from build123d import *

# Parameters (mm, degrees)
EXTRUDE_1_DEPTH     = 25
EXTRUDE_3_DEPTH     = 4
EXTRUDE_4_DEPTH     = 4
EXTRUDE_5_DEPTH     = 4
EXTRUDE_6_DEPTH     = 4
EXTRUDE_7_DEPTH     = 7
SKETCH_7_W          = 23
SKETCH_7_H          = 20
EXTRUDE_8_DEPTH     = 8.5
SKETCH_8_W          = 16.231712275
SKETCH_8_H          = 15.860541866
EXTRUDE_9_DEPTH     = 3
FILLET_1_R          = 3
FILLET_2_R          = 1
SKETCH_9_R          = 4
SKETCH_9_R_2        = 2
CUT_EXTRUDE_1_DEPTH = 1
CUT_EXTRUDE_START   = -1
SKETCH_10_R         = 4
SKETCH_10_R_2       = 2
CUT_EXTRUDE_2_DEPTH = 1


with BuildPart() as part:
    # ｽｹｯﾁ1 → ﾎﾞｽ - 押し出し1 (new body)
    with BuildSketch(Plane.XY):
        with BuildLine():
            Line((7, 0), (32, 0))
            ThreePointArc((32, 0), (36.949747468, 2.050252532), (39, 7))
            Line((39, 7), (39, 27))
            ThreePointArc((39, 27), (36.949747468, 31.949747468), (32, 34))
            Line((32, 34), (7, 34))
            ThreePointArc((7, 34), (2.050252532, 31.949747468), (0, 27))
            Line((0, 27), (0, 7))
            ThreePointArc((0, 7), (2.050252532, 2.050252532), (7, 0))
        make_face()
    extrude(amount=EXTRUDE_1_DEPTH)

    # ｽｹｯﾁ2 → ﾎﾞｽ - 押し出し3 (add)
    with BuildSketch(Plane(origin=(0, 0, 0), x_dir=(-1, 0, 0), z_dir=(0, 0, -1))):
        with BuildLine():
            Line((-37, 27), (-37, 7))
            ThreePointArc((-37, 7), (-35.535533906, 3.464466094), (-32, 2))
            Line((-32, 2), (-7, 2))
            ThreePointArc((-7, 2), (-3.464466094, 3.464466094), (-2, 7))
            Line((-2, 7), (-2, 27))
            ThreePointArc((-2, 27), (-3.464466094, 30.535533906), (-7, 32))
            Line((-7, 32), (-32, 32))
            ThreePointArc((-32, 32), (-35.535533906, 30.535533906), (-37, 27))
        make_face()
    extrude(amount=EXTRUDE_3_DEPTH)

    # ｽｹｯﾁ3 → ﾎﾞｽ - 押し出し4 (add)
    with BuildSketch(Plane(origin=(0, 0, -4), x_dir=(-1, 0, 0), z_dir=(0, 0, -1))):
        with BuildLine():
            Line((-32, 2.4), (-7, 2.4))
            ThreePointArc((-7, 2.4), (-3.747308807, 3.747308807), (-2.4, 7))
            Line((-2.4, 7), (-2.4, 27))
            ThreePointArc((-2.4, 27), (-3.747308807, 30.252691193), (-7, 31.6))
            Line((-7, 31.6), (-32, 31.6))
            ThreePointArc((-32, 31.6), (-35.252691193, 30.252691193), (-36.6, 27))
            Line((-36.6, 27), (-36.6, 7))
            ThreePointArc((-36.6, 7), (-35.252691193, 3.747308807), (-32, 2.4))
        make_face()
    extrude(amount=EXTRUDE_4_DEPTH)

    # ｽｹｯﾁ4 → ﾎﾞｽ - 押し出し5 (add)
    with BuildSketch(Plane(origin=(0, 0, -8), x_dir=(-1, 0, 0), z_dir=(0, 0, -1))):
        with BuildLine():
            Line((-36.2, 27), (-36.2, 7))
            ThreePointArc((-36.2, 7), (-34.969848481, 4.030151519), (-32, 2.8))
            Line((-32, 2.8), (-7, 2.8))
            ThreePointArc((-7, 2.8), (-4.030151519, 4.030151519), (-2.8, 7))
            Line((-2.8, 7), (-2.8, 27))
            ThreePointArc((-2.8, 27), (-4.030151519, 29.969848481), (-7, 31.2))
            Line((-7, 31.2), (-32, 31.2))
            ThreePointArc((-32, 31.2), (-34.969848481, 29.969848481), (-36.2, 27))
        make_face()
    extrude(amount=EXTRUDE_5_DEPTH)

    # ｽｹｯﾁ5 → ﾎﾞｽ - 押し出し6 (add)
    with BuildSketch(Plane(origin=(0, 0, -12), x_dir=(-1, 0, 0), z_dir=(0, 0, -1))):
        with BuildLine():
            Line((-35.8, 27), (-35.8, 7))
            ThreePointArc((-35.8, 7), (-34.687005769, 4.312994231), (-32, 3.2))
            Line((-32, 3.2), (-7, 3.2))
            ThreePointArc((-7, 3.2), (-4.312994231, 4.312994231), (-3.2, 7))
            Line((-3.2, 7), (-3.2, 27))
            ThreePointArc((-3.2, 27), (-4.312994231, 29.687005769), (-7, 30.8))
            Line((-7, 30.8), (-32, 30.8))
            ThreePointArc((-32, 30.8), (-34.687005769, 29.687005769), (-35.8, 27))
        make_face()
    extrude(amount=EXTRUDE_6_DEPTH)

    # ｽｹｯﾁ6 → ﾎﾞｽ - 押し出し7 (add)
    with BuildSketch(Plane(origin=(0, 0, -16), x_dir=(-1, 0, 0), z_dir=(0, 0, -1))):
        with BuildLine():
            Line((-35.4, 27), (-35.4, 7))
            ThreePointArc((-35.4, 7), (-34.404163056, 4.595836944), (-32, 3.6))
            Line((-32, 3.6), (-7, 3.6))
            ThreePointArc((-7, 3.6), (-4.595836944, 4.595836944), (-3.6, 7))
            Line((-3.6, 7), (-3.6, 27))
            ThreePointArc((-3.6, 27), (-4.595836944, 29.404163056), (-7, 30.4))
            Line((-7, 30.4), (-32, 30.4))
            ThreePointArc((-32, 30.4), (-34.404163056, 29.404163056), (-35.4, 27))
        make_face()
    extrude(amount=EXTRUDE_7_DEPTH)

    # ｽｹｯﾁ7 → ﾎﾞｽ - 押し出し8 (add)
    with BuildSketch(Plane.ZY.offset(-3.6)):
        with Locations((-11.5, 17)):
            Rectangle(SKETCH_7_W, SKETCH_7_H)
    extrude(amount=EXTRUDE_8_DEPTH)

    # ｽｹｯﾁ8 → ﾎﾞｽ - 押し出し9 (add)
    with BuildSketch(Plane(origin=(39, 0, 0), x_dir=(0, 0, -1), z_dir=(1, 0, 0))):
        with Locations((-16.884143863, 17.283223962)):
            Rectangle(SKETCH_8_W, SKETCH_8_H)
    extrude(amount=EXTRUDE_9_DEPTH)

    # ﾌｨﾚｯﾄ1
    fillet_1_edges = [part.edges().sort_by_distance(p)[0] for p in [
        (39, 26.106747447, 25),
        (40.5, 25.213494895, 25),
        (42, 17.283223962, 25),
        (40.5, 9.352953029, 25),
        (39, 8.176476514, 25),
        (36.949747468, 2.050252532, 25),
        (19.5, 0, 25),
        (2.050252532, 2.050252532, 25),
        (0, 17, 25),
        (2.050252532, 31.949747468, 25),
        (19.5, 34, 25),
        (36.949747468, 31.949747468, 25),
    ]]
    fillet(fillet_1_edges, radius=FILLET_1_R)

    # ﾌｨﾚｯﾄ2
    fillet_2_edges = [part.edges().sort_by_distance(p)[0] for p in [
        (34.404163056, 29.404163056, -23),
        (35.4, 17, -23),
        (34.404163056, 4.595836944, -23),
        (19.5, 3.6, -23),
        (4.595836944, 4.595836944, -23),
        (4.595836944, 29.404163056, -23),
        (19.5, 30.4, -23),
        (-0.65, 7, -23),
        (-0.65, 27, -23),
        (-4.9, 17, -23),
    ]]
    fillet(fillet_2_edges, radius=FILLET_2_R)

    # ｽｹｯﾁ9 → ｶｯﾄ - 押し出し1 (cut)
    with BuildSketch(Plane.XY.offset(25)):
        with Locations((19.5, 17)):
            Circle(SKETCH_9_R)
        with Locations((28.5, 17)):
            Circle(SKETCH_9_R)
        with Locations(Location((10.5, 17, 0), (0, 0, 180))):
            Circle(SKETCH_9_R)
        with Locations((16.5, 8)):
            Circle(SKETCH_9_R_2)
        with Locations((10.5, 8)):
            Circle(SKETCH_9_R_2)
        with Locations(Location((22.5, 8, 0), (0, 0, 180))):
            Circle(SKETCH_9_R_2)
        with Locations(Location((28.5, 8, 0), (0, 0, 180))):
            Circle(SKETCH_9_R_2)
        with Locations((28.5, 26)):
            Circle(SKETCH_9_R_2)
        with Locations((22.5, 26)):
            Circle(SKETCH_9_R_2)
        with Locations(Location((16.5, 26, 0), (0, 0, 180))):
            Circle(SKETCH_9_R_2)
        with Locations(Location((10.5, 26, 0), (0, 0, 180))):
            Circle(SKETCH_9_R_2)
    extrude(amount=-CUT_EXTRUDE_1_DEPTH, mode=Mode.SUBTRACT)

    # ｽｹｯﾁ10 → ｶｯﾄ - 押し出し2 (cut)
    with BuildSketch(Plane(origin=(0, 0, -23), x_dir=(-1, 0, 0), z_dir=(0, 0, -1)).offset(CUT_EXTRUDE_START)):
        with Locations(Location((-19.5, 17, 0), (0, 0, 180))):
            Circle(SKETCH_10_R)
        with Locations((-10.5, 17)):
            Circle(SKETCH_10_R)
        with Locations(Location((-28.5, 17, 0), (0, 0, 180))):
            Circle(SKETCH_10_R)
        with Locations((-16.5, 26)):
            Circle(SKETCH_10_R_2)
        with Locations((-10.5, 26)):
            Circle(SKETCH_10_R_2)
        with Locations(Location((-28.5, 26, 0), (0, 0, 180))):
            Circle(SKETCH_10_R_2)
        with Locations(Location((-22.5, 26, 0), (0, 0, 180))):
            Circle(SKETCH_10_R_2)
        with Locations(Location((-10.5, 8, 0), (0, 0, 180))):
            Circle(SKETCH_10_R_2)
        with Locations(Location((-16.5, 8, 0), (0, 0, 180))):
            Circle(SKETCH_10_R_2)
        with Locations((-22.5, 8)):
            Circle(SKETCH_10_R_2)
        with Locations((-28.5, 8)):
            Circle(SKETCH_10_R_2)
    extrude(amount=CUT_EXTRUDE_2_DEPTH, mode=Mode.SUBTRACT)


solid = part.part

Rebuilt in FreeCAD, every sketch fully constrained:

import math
import FreeCAD as App
import Part
import Sketcher


def edges_at(feature, points):
    """Names of the edges that pass closest to the given points."""
    edges = feature.Shape.Edges
    near = lambda p: min(range(len(edges)), key=lambda i: edges[i].distToShape(Part.Vertex(*p))[0])
    return sorted({f"Edge{near(p) + 1}" for p in points})

doc = App.newDocument("Part")
body = doc.addObject("PartDesign::Body", "Body")

sketch1 = body.newObject("Sketcher::SketchObject", "Sketch")
sketch1.AttachmentSupport = (doc.getObject("XY_Plane"), [""])
sketch1.MapMode = "FlatFace"
sketch1.addGeometry(Part.LineSegment(App.Vector(7, 0, 0), App.Vector(32, 0, 0)), False)
sketch1.addGeometry(Part.ArcOfCircle(Part.Circle(App.Vector(32, 7, 0), App.Vector(0, 0, 1), 7), math.radians(-90), math.radians(0)), False)
sketch1.addGeometry(Part.LineSegment(App.Vector(39, 7, 0), App.Vector(39, 27, 0)), False)
sketch1.addGeometry(Part.ArcOfCircle(Part.Circle(App.Vector(32, 27, 0), App.Vector(0, 0, 1), 7), math.radians(0), math.radians(90)), False)
sketch1.addGeometry(Part.LineSegment(App.Vector(32, 34, 0), App.Vector(7, 34, 0)), False)
sketch1.addGeometry(Part.ArcOfCircle(Part.Circle(App.Vector(7, 27, 0), App.Vector(0, 0, 1), 7), math.radians(90), math.radians(180)), False)
sketch1.addGeometry(Part.LineSegment(App.Vector(0, 27, 0), App.Vector(0, 7, 0)), False)
sketch1.addGeometry(Part.ArcOfCircle(Part.Circle(App.Vector(7, 7, 0), App.Vector(0, 0, 1), 7), math.radians(-180), math.radians(-90)), False)
sketch1.addConstraint(Sketcher.Constraint("Tangent", 0, 2, 1, 1))
sketch1.addConstraint(Sketcher.Constraint("Tangent", 1, 2, 2, 1))
sketch1.addConstraint(Sketcher.Constraint("Tangent", 2, 2, 3, 1))
sketch1.addConstraint(Sketcher.Constraint("Tangent", 3, 2, 4, 1))
sketch1.addConstraint(Sketcher.Constraint("Tangent", 4, 2, 5, 1))
sketch1.addConstraint(Sketcher.Constraint("Tangent", 5, 2, 6, 1))
sketch1.addConstraint(Sketcher.Constraint("Tangent", 6, 2, 7, 1))
sketch1.addConstraint(Sketcher.Constraint("Tangent", 7, 2, 0, 1))
sketch1.addConstraint(Sketcher.Constraint("Horizontal", 0))
sketch1.addConstraint(Sketcher.Constraint("Vertical", 2))
sketch1.addConstraint(Sketcher.Constraint("Horizontal", 4))
sketch1.addConstraint(Sketcher.Constraint("Vertical", 6))
sketch1.addConstraint(Sketcher.Constraint("Equal", 1, 3))
sketch1.addConstraint(Sketcher.Constraint("Equal", 3, 5))
sketch1.addConstraint(Sketcher.Constraint("Equal", 5, 7))
sketch1.addConstraint(Sketcher.Constraint("PointOnObject", 0, 2, -1))
sketch1.addConstraint(Sketcher.Constraint("PointOnObject", 5, 2, -2))
sketch1.addConstraint(Sketcher.Constraint("Radius", 1, 7.0))
sketch1.addConstraint(Sketcher.Constraint("DistanceX", 0, 1, 0, 2, 25.0))
sketch1.addConstraint(Sketcher.Constraint("DistanceY", 2, 1, 2, 2, 20.0))
pad1 = body.newObject("PartDesign::Pad", "Pad")
pad1.Profile = sketch1
pad1.Length = 25

sketch2 = body.newObject("Sketcher::SketchObject", "Sketch001")
sketch2.AttachmentSupport = (doc.getObject("XY_Plane"), [""])
sketch2.MapMode = "FlatFace"
sketch2.addGeometry(Part.LineSegment(App.Vector(37, 27, 0), App.Vector(37, 7, 0)), False)
sketch2.addGeometry(Part.ArcOfCircle(Part.Circle(App.Vector(32, 7, 0), App.Vector(0, 0, 1), 5), math.radians(-90), math.radians(0)), False)
sketch2.addGeometry(Part.LineSegment(App.Vector(32, 2, 0), App.Vector(7, 2, 0)), False)
sketch2.addGeometry(Part.ArcOfCircle(Part.Circle(App.Vector(7, 7, 0), App.Vector(0, 0, 1), 5), math.radians(180), math.radians(270)), False)
sketch2.addGeometry(Part.LineSegment(App.Vector(2, 7, 0), App.Vector(2, 27, 0)), False)
sketch2.addGeometry(Part.ArcOfCircle(Part.Circle(App.Vector(7, 27, 0), App.Vector(0, 0, 1), 5), math.radians(90), math.radians(180)), False)
sketch2.addGeometry(Part.LineSegment(App.Vector(7, 32, 0), App.Vector(32, 32, 0)), False)
sketch2.addGeometry(Part.ArcOfCircle(Part.Circle(App.Vector(32, 27, 0), App.Vector(0, 0, 1), 5), math.radians(0), math.radians(90)), False)
sketch2.addConstraint(Sketcher.Constraint("Tangent", 0, 2, 1, 2))
sketch2.addConstraint(Sketcher.Constraint("Tangent", 1, 1, 2, 1))
sketch2.addConstraint(Sketcher.Constraint("Tangent", 2, 2, 3, 2))
sketch2.addConstraint(Sketcher.Constraint("Tangent", 3, 1, 4, 1))
sketch2.addConstraint(Sketcher.Constraint("Tangent", 4, 2, 5, 2))
sketch2.addConstraint(Sketcher.Constraint("Tangent", 5, 1, 6, 1))
sketch2.addConstraint(Sketcher.Constraint("Tangent", 6, 2, 7, 2))
sketch2.addConstraint(Sketcher.Constraint("Tangent", 7, 1, 0, 1))
sketch2.addConstraint(Sketcher.Constraint("Vertical", 0))
sketch2.addConstraint(Sketcher.Constraint("Horizontal", 2))
sketch2.addConstraint(Sketcher.Constraint("Vertical", 4))
sketch2.addConstraint(Sketcher.Constraint("Horizontal", 6))
sketch2.addConstraint(Sketcher.Constraint("Equal", 1, 3))
sketch2.addConstraint(Sketcher.Constraint("Equal", 3, 5))
sketch2.addConstraint(Sketcher.Constraint("Equal", 5, 7))
sketch2.addConstraint(Sketcher.Constraint("Radius", 1, 5.0))
sketch2.addConstraint(Sketcher.Constraint("DistanceX", 2, 2, 2, 1, 25.0))
sketch2.addConstraint(Sketcher.Constraint("DistanceY", 0, 2, 0, 1, 20.0))
sketch2.addConstraint(Sketcher.Constraint("DistanceX", -1, 1, 1, 3, 32.0))
sketch2.addConstraint(Sketcher.Constraint("DistanceY", -1, 1, 1, 3, 7.0))
pad2 = body.newObject("PartDesign::Pad", "Pad001")
pad2.Profile = sketch2
pad2.Length = 4
pad2.Reversed = True

sketch3 = body.newObject("Sketcher::SketchObject", "Sketch002")
sketch3.AttachmentSupport = (doc.getObject("XY_Plane"), [""])
sketch3.MapMode = "FlatFace"
sketch3.AttachmentOffset = App.Placement(App.Vector(0, 0, -4), App.Rotation())
sketch3.addGeometry(Part.LineSegment(App.Vector(32, 2.4, 0), App.Vector(7, 2.4, 0)), False)
sketch3.addGeometry(Part.ArcOfCircle(Part.Circle(App.Vector(7, 7, 0), App.Vector(0, 0, 1), 4.6), math.radians(-180), math.radians(-90)), False)
sketch3.addGeometry(Part.LineSegment(App.Vector(2.4, 7, 0), App.Vector(2.4, 27, 0)), False)
sketch3.addGeometry(Part.ArcOfCircle(Part.Circle(App.Vector(7, 27, 0), App.Vector(0, 0, 1), 4.6), math.radians(90), math.radians(180)), False)
sketch3.addGeometry(Part.LineSegment(App.Vector(7, 31.6, 0), App.Vector(32, 31.6, 0)), False)
sketch3.addGeometry(Part.ArcOfCircle(Part.Circle(App.Vector(32, 27, 0), App.Vector(0, 0, 1), 4.6), math.radians(0), math.radians(90)), False)
sketch3.addGeometry(Part.LineSegment(App.Vector(36.6, 27, 0), App.Vector(36.6, 7, 0)), False)
sketch3.addGeometry(Part.ArcOfCircle(Part.Circle(App.Vector(32, 7, 0), App.Vector(0, 0, 1), 4.6), math.radians(-90), math.radians(0)), False)
sketch3.addConstraint(Sketcher.Constraint("Tangent", 0, 2, 1, 2))
sketch3.addConstraint(Sketcher.Constraint("Tangent", 1, 1, 2, 1))
sketch3.addConstraint(Sketcher.Constraint("Tangent", 2, 2, 3, 2))
sketch3.addConstraint(Sketcher.Constraint("Tangent", 3, 1, 4, 1))
sketch3.addConstraint(Sketcher.Constraint("Tangent", 4, 2, 5, 2))
sketch3.addConstraint(Sketcher.Constraint("Tangent", 5, 1, 6, 1))
sketch3.addConstraint(Sketcher.Constraint("Tangent", 6, 2, 7, 2))
sketch3.addConstraint(Sketcher.Constraint("Tangent", 7, 1, 0, 1))
sketch3.addConstraint(Sketcher.Constraint("Horizontal", 0))
sketch3.addConstraint(Sketcher.Constraint("Vertical", 2))
sketch3.addConstraint(Sketcher.Constraint("Horizontal", 4))
sketch3.addConstraint(Sketcher.Constraint("Vertical", 6))
sketch3.addConstraint(Sketcher.Constraint("Equal", 1, 3))
sketch3.addConstraint(Sketcher.Constraint("Equal", 3, 5))
sketch3.addConstraint(Sketcher.Constraint("Equal", 5, 7))
sketch3.addConstraint(Sketcher.Constraint("Radius", 1, 4.6))
sketch3.addConstraint(Sketcher.Constraint("DistanceX", 0, 2, 0, 1, 25.0))
sketch3.addConstraint(Sketcher.Constraint("DistanceY", 2, 1, 2, 2, 20.0))
sketch3.addConstraint(Sketcher.Constraint("DistanceX", -1, 1, 1, 3, 7.0))
sketch3.addConstraint(Sketcher.Constraint("DistanceY", -1, 1, 1, 3, 7.0))
pad3 = body.newObject("PartDesign::Pad", "Pad002")
pad3.Profile = sketch3
pad3.Length = 4
pad3.Reversed = True

sketch4 = body.newObject("Sketcher::SketchObject", "Sketch003")
sketch4.AttachmentSupport = (doc.getObject("XY_Plane"), [""])
sketch4.MapMode = "FlatFace"
sketch4.AttachmentOffset = App.Placement(App.Vector(0, 0, -8), App.Rotation())
sketch4.addGeometry(Part.LineSegment(App.Vector(36.2, 27, 0), App.Vector(36.2, 7, 0)), False)
sketch4.addGeometry(Part.ArcOfCircle(Part.Circle(App.Vector(32, 7, 0), App.Vector(0, 0, 1), 4.2), math.radians(-90), math.radians(0)), False)
sketch4.addGeometry(Part.LineSegment(App.Vector(32, 2.8, 0), App.Vector(7, 2.8, 0)), False)
sketch4.addGeometry(Part.ArcOfCircle(Part.Circle(App.Vector(7, 7, 0), App.Vector(0, 0, 1), 4.2), math.radians(180), math.radians(270)), False)
sketch4.addGeometry(Part.LineSegment(App.Vector(2.8, 7, 0), App.Vector(2.8, 27, 0)), False)
sketch4.addGeometry(Part.ArcOfCircle(Part.Circle(App.Vector(7, 27, 0), App.Vector(0, 0, 1), 4.2), math.radians(90), math.radians(180)), False)
sketch4.addGeometry(Part.LineSegment(App.Vector(7, 31.2, 0), App.Vector(32, 31.2, 0)), False)
sketch4.addGeometry(Part.ArcOfCircle(Part.Circle(App.Vector(32, 27, 0), App.Vector(0, 0, 1), 4.2), math.radians(0), math.radians(90)), False)
sketch4.addConstraint(Sketcher.Constraint("Tangent", 0, 2, 1, 2))
sketch4.addConstraint(Sketcher.Constraint("Tangent", 1, 1, 2, 1))
sketch4.addConstraint(Sketcher.Constraint("Tangent", 2, 2, 3, 2))
sketch4.addConstraint(Sketcher.Constraint("Tangent", 3, 1, 4, 1))
sketch4.addConstraint(Sketcher.Constraint("Tangent", 4, 2, 5, 2))
sketch4.addConstraint(Sketcher.Constraint("Tangent", 5, 1, 6, 1))
sketch4.addConstraint(Sketcher.Constraint("Tangent", 6, 2, 7, 2))
sketch4.addConstraint(Sketcher.Constraint("Tangent", 7, 1, 0, 1))
sketch4.addConstraint(Sketcher.Constraint("Vertical", 0))
sketch4.addConstraint(Sketcher.Constraint("Horizontal", 2))
sketch4.addConstraint(Sketcher.Constraint("Vertical", 4))
sketch4.addConstraint(Sketcher.Constraint("Horizontal", 6))
sketch4.addConstraint(Sketcher.Constraint("Equal", 1, 3))
sketch4.addConstraint(Sketcher.Constraint("Equal", 3, 5))
sketch4.addConstraint(Sketcher.Constraint("Equal", 5, 7))
sketch4.addConstraint(Sketcher.Constraint("Radius", 1, 4.2))
sketch4.addConstraint(Sketcher.Constraint("DistanceX", 2, 2, 2, 1, 25.0))
sketch4.addConstraint(Sketcher.Constraint("DistanceY", 0, 2, 0, 1, 20.0))
sketch4.addConstraint(Sketcher.Constraint("DistanceX", -1, 1, 1, 3, 32.0))
sketch4.addConstraint(Sketcher.Constraint("DistanceY", -1, 1, 1, 3, 7.0))
pad4 = body.newObject("PartDesign::Pad", "Pad003")
pad4.Profile = sketch4
pad4.Length = 4
pad4.Reversed = True

sketch5 = body.newObject("Sketcher::SketchObject", "Sketch004")
sketch5.AttachmentSupport = (doc.getObject("XY_Plane"), [""])
sketch5.MapMode = "FlatFace"
sketch5.AttachmentOffset = App.Placement(App.Vector(0, 0, -12), App.Rotation())
sketch5.addGeometry(Part.LineSegment(App.Vector(35.8, 27, 0), App.Vector(35.8, 7, 0)), False)
sketch5.addGeometry(Part.ArcOfCircle(Part.Circle(App.Vector(32, 7, 0), App.Vector(0, 0, 1), 3.8), math.radians(-90), math.radians(0)), False)
sketch5.addGeometry(Part.LineSegment(App.Vector(32, 3.2, 0), App.Vector(7, 3.2, 0)), False)
sketch5.addGeometry(Part.ArcOfCircle(Part.Circle(App.Vector(7, 7, 0), App.Vector(0, 0, 1), 3.8), math.radians(180), math.radians(270)), False)
sketch5.addGeometry(Part.LineSegment(App.Vector(3.2, 7, 0), App.Vector(3.2, 27, 0)), False)
sketch5.addGeometry(Part.ArcOfCircle(Part.Circle(App.Vector(7, 27, 0), App.Vector(0, 0, 1), 3.8), math.radians(90), math.radians(180)), False)
sketch5.addGeometry(Part.LineSegment(App.Vector(7, 30.8, 0), App.Vector(32, 30.8, 0)), False)
sketch5.addGeometry(Part.ArcOfCircle(Part.Circle(App.Vector(32, 27, 0), App.Vector(0, 0, 1), 3.8), math.radians(0), math.radians(90)), False)
sketch5.addConstraint(Sketcher.Constraint("Tangent", 0, 2, 1, 2))
sketch5.addConstraint(Sketcher.Constraint("Tangent", 1, 1, 2, 1))
sketch5.addConstraint(Sketcher.Constraint("Tangent", 2, 2, 3, 2))
sketch5.addConstraint(Sketcher.Constraint("Tangent", 3, 1, 4, 1))
sketch5.addConstraint(Sketcher.Constraint("Tangent", 4, 2, 5, 2))
sketch5.addConstraint(Sketcher.Constraint("Tangent", 5, 1, 6, 1))
sketch5.addConstraint(Sketcher.Constraint("Tangent", 6, 2, 7, 2))
sketch5.addConstraint(Sketcher.Constraint("Tangent", 7, 1, 0, 1))
sketch5.addConstraint(Sketcher.Constraint("Vertical", 0))
sketch5.addConstraint(Sketcher.Constraint("Horizontal", 2))
sketch5.addConstraint(Sketcher.Constraint("Vertical", 4))
sketch5.addConstraint(Sketcher.Constraint("Horizontal", 6))
sketch5.addConstraint(Sketcher.Constraint("Equal", 1, 3))
sketch5.addConstraint(Sketcher.Constraint("Equal", 3, 5))
sketch5.addConstraint(Sketcher.Constraint("Equal", 5, 7))
sketch5.addConstraint(Sketcher.Constraint("Radius", 1, 3.8))
sketch5.addConstraint(Sketcher.Constraint("DistanceX", 2, 2, 2, 1, 25.0))
sketch5.addConstraint(Sketcher.Constraint("DistanceY", 0, 2, 0, 1, 20.0))
sketch5.addConstraint(Sketcher.Constraint("DistanceX", -1, 1, 1, 3, 32.0))
sketch5.addConstraint(Sketcher.Constraint("DistanceY", -1, 1, 1, 3, 7.0))
pad5 = body.newObject("PartDesign::Pad", "Pad004")
pad5.Profile = sketch5
pad5.Length = 4
pad5.Reversed = True

sketch6 = body.newObject("Sketcher::SketchObject", "Sketch005")
sketch6.AttachmentSupport = (doc.getObject("XY_Plane"), [""])
sketch6.MapMode = "FlatFace"
sketch6.AttachmentOffset = App.Placement(App.Vector(0, 0, -16), App.Rotation())
sketch6.addGeometry(Part.LineSegment(App.Vector(35.4, 27, 0), App.Vector(35.4, 7, 0)), False)
sketch6.addGeometry(Part.ArcOfCircle(Part.Circle(App.Vector(32, 7, 0), App.Vector(0, 0, 1), 3.4), math.radians(-90), math.radians(0)), False)
sketch6.addGeometry(Part.LineSegment(App.Vector(32, 3.6, 0), App.Vector(7, 3.6, 0)), False)
sketch6.addGeometry(Part.ArcOfCircle(Part.Circle(App.Vector(7, 7, 0), App.Vector(0, 0, 1), 3.4), math.radians(180), math.radians(270)), False)
sketch6.addGeometry(Part.LineSegment(App.Vector(3.6, 7, 0), App.Vector(3.6, 27, 0)), False)
sketch6.addGeometry(Part.ArcOfCircle(Part.Circle(App.Vector(7, 27, 0), App.Vector(0, 0, 1), 3.4), math.radians(90), math.radians(180)), False)
sketch6.addGeometry(Part.LineSegment(App.Vector(7, 30.4, 0), App.Vector(32, 30.4, 0)), False)
sketch6.addGeometry(Part.ArcOfCircle(Part.Circle(App.Vector(32, 27, 0), App.Vector(0, 0, 1), 3.4), math.radians(0), math.radians(90)), False)
sketch6.addConstraint(Sketcher.Constraint("Tangent", 0, 2, 1, 2))
sketch6.addConstraint(Sketcher.Constraint("Tangent", 1, 1, 2, 1))
sketch6.addConstraint(Sketcher.Constraint("Tangent", 2, 2, 3, 2))
sketch6.addConstraint(Sketcher.Constraint("Tangent", 3, 1, 4, 1))
sketch6.addConstraint(Sketcher.Constraint("Tangent", 4, 2, 5, 2))
sketch6.addConstraint(Sketcher.Constraint("Tangent", 5, 1, 6, 1))
sketch6.addConstraint(Sketcher.Constraint("Tangent", 6, 2, 7, 2))
sketch6.addConstraint(Sketcher.Constraint("Tangent", 7, 1, 0, 1))
sketch6.addConstraint(Sketcher.Constraint("Vertical", 0))
sketch6.addConstraint(Sketcher.Constraint("Horizontal", 2))
sketch6.addConstraint(Sketcher.Constraint("Vertical", 4))
sketch6.addConstraint(Sketcher.Constraint("Horizontal", 6))
sketch6.addConstraint(Sketcher.Constraint("Equal", 1, 3))
sketch6.addConstraint(Sketcher.Constraint("Equal", 3, 5))
sketch6.addConstraint(Sketcher.Constraint("Equal", 5, 7))
sketch6.addConstraint(Sketcher.Constraint("Radius", 1, 3.4))
sketch6.addConstraint(Sketcher.Constraint("DistanceX", 2, 2, 2, 1, 25.0))
sketch6.addConstraint(Sketcher.Constraint("DistanceY", 0, 2, 0, 1, 20.0))
sketch6.addConstraint(Sketcher.Constraint("DistanceX", -1, 1, 1, 3, 32.0))
sketch6.addConstraint(Sketcher.Constraint("DistanceY", -1, 1, 1, 3, 7.0))
pad6 = body.newObject("PartDesign::Pad", "Pad005")
pad6.Profile = sketch6
pad6.Length = 7
pad6.Reversed = True

sketch7 = body.newObject("Sketcher::SketchObject", "Sketch006")
sketch7.AttachmentSupport = (doc.getObject("YZ_Plane"), [""])
sketch7.MapMode = "FlatFace"
sketch7.AttachmentOffset = App.Placement(App.Vector(0, 0, 3.6), App.Rotation())
sketch7.addGeometry(Part.LineSegment(App.Vector(27, -23, 0), App.Vector(7, -23, 0)), False)
sketch7.addGeometry(Part.LineSegment(App.Vector(7, -23, 0), App.Vector(7, 0, 0)), False)
sketch7.addGeometry(Part.LineSegment(App.Vector(7, 0, 0), App.Vector(27, 0, 0)), False)
sketch7.addGeometry(Part.LineSegment(App.Vector(27, 0, 0), App.Vector(27, -23, 0)), False)
sketch7.addConstraint(Sketcher.Constraint("Coincident", 0, 2, 1, 1))
sketch7.addConstraint(Sketcher.Constraint("Coincident", 1, 2, 2, 1))
sketch7.addConstraint(Sketcher.Constraint("Coincident", 2, 2, 3, 1))
sketch7.addConstraint(Sketcher.Constraint("Coincident", 3, 2, 0, 1))
sketch7.addConstraint(Sketcher.Constraint("Horizontal", 0))
sketch7.addConstraint(Sketcher.Constraint("Vertical", 1))
sketch7.addConstraint(Sketcher.Constraint("Horizontal", 2))
sketch7.addConstraint(Sketcher.Constraint("Vertical", 3))
sketch7.addConstraint(Sketcher.Constraint("PointOnObject", 1, 2, -1))
sketch7.addConstraint(Sketcher.Constraint("DistanceX", 0, 2, 0, 1, 20.0))
sketch7.addConstraint(Sketcher.Constraint("DistanceY", 1, 1, 1, 2, 23.0))
sketch7.addConstraint(Sketcher.Constraint("DistanceX", -1, 1, 0, 2, 7.0))
pad7 = body.newObject("PartDesign::Pad", "Pad006")
pad7.Profile = sketch7
pad7.Length = 8.5
pad7.Reversed = True

sketch8 = body.newObject("Sketcher::SketchObject", "Sketch007")
sketch8.AttachmentSupport = (doc.getObject("YZ_Plane"), [""])
sketch8.MapMode = "FlatFace"
sketch8.AttachmentOffset = App.Placement(App.Vector(0, 0, 39), App.Rotation())
sketch8.addGeometry(Part.LineSegment(App.Vector(25, 25, 0), App.Vector(9, 25, 0)), False)
sketch8.addGeometry(Part.LineSegment(App.Vector(9, 25, 0), App.Vector(9, 9, 0)), False)
sketch8.addGeometry(Part.LineSegment(App.Vector(9, 9, 0), App.Vector(25, 9, 0)), False)
sketch8.addGeometry(Part.LineSegment(App.Vector(25, 9, 0), App.Vector(25, 25, 0)), False)
sketch8.addConstraint(Sketcher.Constraint("Coincident", 0, 2, 1, 1))
sketch8.addConstraint(Sketcher.Constraint("Coincident", 1, 2, 2, 1))
sketch8.addConstraint(Sketcher.Constraint("Coincident", 2, 2, 3, 1))
sketch8.addConstraint(Sketcher.Constraint("Coincident", 3, 2, 0, 1))
sketch8.addConstraint(Sketcher.Constraint("Horizontal", 0))
sketch8.addConstraint(Sketcher.Constraint("Vertical", 1))
sketch8.addConstraint(Sketcher.Constraint("Horizontal", 2))
sketch8.addConstraint(Sketcher.Constraint("Vertical", 3))
sketch8.addConstraint(Sketcher.Constraint("DistanceY", -1, 1, 0, 2, 25.0))
sketch8.addConstraint(Sketcher.Constraint("DistanceX", 0, 2, 0, 1, 15.860542))
sketch8.addConstraint(Sketcher.Constraint("DistanceY", 1, 2, 1, 1, 16.231712))
sketch8.addConstraint(Sketcher.Constraint("DistanceX", -1, 1, 0, 2, 9.352953))
pad8 = body.newObject("PartDesign::Pad", "Pad007")
pad8.Profile = sketch8
pad8.Length = 3
doc.recompute()

fillet = body.newObject("PartDesign::Fillet", "Fillet")
fillet.Base = (pad8, edges_at(pad8, [
    (39, 26.107, 25),
    (40.5, 25.213, 25),
    (42, 17.283, 25),
    (40.5, 9.353, 25),
    (39, 8.176, 25),
    (36.95, 2.05, 25),
    (19.5, 0, 25),
    (2.05, 2.05, 25),
    (0, 17, 25),
    (2.05, 31.95, 25),
    (19.5, 34, 25),
    (36.95, 31.95, 25),
]))
fillet.Radius = 3
doc.recompute()

fillet2 = body.newObject("PartDesign::Fillet", "Fillet001")
fillet2.Base = (fillet, edges_at(fillet, [
    (34.404, 29.404, -23),
    (35.4, 17, -23),
    (34.404, 4.596, -23),
    (19.5, 3.6, -23),
    (4.596, 4.596, -23),
    (4.596, 29.404, -23),
    (19.5, 30.4, -23),
    (-0.65, 7, -23),
    (-0.65, 27, -23),
    (-4.9, 17, -23),
]))
fillet2.Radius = 1

sketch9 = body.newObject("Sketcher::SketchObject", "Sketch008")
sketch9.AttachmentSupport = (doc.getObject("XY_Plane"), [""])
sketch9.MapMode = "FlatFace"
sketch9.AttachmentOffset = App.Placement(App.Vector(0, 0, 25), App.Rotation())
sketch9.addGeometry(Part.Circle(App.Vector(19.5, 17, 0), App.Vector(0, 0, 1), 4), False)
sketch9.addGeometry(Part.Circle(App.Vector(28.5, 17, 0), App.Vector(0, 0, 1), 4), False)
sketch9.addGeometry(Part.Circle(App.Vector(10.5, 17, 0), App.Vector(0, 0, 1), 4), False)
sketch9.addGeometry(Part.Circle(App.Vector(16.5, 8, 0), App.Vector(0, 0, 1), 2), False)
sketch9.addGeometry(Part.Circle(App.Vector(10.5, 8, 0), App.Vector(0, 0, 1), 2), False)
sketch9.addGeometry(Part.Circle(App.Vector(22.5, 8, 0), App.Vector(0, 0, 1), 2), False)
sketch9.addGeometry(Part.Circle(App.Vector(28.5, 8, 0), App.Vector(0, 0, 1), 2), False)
sketch9.addGeometry(Part.Circle(App.Vector(28.5, 26, 0), App.Vector(0, 0, 1), 2), False)
sketch9.addGeometry(Part.Circle(App.Vector(22.5, 26, 0), App.Vector(0, 0, 1), 2), False)
sketch9.addGeometry(Part.Circle(App.Vector(16.5, 26, 0), App.Vector(0, 0, 1), 2), False)
sketch9.addGeometry(Part.Circle(App.Vector(10.5, 26, 0), App.Vector(0, 0, 1), 2), False)
sketch9.addConstraint(Sketcher.Constraint("Equal", 0, 1))
sketch9.addConstraint(Sketcher.Constraint("Equal", 1, 2))
sketch9.addConstraint(Sketcher.Constraint("Equal", 3, 4))
sketch9.addConstraint(Sketcher.Constraint("Equal", 4, 5))
sketch9.addConstraint(Sketcher.Constraint("Equal", 5, 6))
sketch9.addConstraint(Sketcher.Constraint("Equal", 6, 7))
sketch9.addConstraint(Sketcher.Constraint("Equal", 7, 8))
sketch9.addConstraint(Sketcher.Constraint("Equal", 8, 9))
sketch9.addConstraint(Sketcher.Constraint("Equal", 9, 10))
sketch9.addConstraint(Sketcher.Constraint("Horizontal", 0, 3, 1, 3))
sketch9.addConstraint(Sketcher.Constraint("Horizontal", 1, 3, 2, 3))
sketch9.addConstraint(Sketcher.Constraint("Horizontal", 3, 3, 4, 3))
sketch9.addConstraint(Sketcher.Constraint("Horizontal", 4, 3, 5, 3))
sketch9.addConstraint(Sketcher.Constraint("Horizontal", 5, 3, 6, 3))
sketch9.addConstraint(Sketcher.Constraint("Horizontal", 7, 3, 8, 3))
sketch9.addConstraint(Sketcher.Constraint("Horizontal", 8, 3, 9, 3))
sketch9.addConstraint(Sketcher.Constraint("Horizontal", 9, 3, 10, 3))
sketch9.addConstraint(Sketcher.Constraint("Vertical", 2, 3, 4, 3))
sketch9.addConstraint(Sketcher.Constraint("Vertical", 1, 3, 6, 3))
sketch9.addConstraint(Sketcher.Constraint("Vertical", 6, 3, 7, 3))
sketch9.addConstraint(Sketcher.Constraint("Vertical", 5, 3, 8, 3))
sketch9.addConstraint(Sketcher.Constraint("Vertical", 3, 3, 9, 3))
sketch9.addConstraint(Sketcher.Constraint("Vertical", 4, 3, 10, 3))
sketch9.addConstraint(Sketcher.Constraint("Diameter", 0, 8.0))
sketch9.addConstraint(Sketcher.Constraint("Diameter", 3, 4.0))
sketch9.addConstraint(Sketcher.Constraint("DistanceY", -1, 1, 0, 3, 17.0))
sketch9.addConstraint(Sketcher.Constraint("DistanceY", -1, 1, 3, 3, 8.0))
sketch9.addConstraint(Sketcher.Constraint("DistanceY", -1, 1, 7, 3, 26.0))
sketch9.addConstraint(Sketcher.Constraint("DistanceX", 0, 3, 1, 3, 9.0))
sketch9.addConstraint(Sketcher.Constraint("DistanceX", 2, 3, 0, 3, 9.0))
sketch9.addConstraint(Sketcher.Constraint("DistanceX", 3, 3, 0, 3, 3.0))
sketch9.addConstraint(Sketcher.Constraint("DistanceX", 3, 3, 5, 3, 6.0))
sketch9.addConstraint(Sketcher.Constraint("DistanceX", -1, 1, 0, 3, 19.5))
pocket1 = body.newObject("PartDesign::Pocket", "Pocket")
pocket1.Profile = sketch9
pocket1.Length = 1

sketch10 = body.newObject("Sketcher::SketchObject", "Sketch009")
sketch10.AttachmentSupport = (doc.getObject("XY_Plane"), [""])
sketch10.MapMode = "FlatFace"
sketch10.AttachmentOffset = App.Placement(App.Vector(0, 0, -22), App.Rotation())
sketch10.addGeometry(Part.Circle(App.Vector(19.5, 17, 0), App.Vector(0, 0, 1), 4), False)
sketch10.addGeometry(Part.Circle(App.Vector(10.5, 17, 0), App.Vector(0, 0, 1), 4), False)
sketch10.addGeometry(Part.Circle(App.Vector(28.5, 17, 0), App.Vector(0, 0, 1), 4), False)
sketch10.addGeometry(Part.Circle(App.Vector(16.5, 26, 0), App.Vector(0, 0, 1), 2), False)
sketch10.addGeometry(Part.Circle(App.Vector(10.5, 26, 0), App.Vector(0, 0, 1), 2), False)
sketch10.addGeometry(Part.Circle(App.Vector(28.5, 26, 0), App.Vector(0, 0, 1), 2), False)
sketch10.addGeometry(Part.Circle(App.Vector(22.5, 26, 0), App.Vector(0, 0, 1), 2), False)
sketch10.addGeometry(Part.Circle(App.Vector(10.5, 8, 0), App.Vector(0, 0, 1), 2), False)
sketch10.addGeometry(Part.Circle(App.Vector(16.5, 8, 0), App.Vector(0, 0, 1), 2), False)
sketch10.addGeometry(Part.Circle(App.Vector(22.5, 8, 0), App.Vector(0, 0, 1), 2), False)
sketch10.addGeometry(Part.Circle(App.Vector(28.5, 8, 0), App.Vector(0, 0, 1), 2), False)
sketch10.addConstraint(Sketcher.Constraint("Equal", 0, 1))
sketch10.addConstraint(Sketcher.Constraint("Equal", 1, 2))
sketch10.addConstraint(Sketcher.Constraint("Equal", 3, 4))
sketch10.addConstraint(Sketcher.Constraint("Equal", 4, 5))
sketch10.addConstraint(Sketcher.Constraint("Equal", 5, 6))
sketch10.addConstraint(Sketcher.Constraint("Equal", 6, 7))
sketch10.addConstraint(Sketcher.Constraint("Equal", 7, 8))
sketch10.addConstraint(Sketcher.Constraint("Equal", 8, 9))
sketch10.addConstraint(Sketcher.Constraint("Equal", 9, 10))
sketch10.addConstraint(Sketcher.Constraint("Horizontal", 0, 3, 1, 3))
sketch10.addConstraint(Sketcher.Constraint("Horizontal", 1, 3, 2, 3))
sketch10.addConstraint(Sketcher.Constraint("Horizontal", 3, 3, 4, 3))
sketch10.addConstraint(Sketcher.Constraint("Horizontal", 4, 3, 5, 3))
sketch10.addConstraint(Sketcher.Constraint("Horizontal", 5, 3, 6, 3))
sketch10.addConstraint(Sketcher.Constraint("Horizontal", 7, 3, 8, 3))
sketch10.addConstraint(Sketcher.Constraint("Horizontal", 8, 3, 9, 3))
sketch10.addConstraint(Sketcher.Constraint("Horizontal", 9, 3, 10, 3))
sketch10.addConstraint(Sketcher.Constraint("Vertical", 1, 3, 4, 3))
sketch10.addConstraint(Sketcher.Constraint("Vertical", 2, 3, 5, 3))
sketch10.addConstraint(Sketcher.Constraint("Vertical", 4, 3, 7, 3))
sketch10.addConstraint(Sketcher.Constraint("Vertical", 3, 3, 8, 3))
sketch10.addConstraint(Sketcher.Constraint("Vertical", 6, 3, 9, 3))
sketch10.addConstraint(Sketcher.Constraint("Vertical", 5, 3, 10, 3))
sketch10.addConstraint(Sketcher.Constraint("Diameter", 0, 8.0))
sketch10.addConstraint(Sketcher.Constraint("Diameter", 3, 4.0))
sketch10.addConstraint(Sketcher.Constraint("DistanceY", -1, 1, 0, 3, 17.0))
sketch10.addConstraint(Sketcher.Constraint("DistanceY", -1, 1, 3, 3, 26.0))
sketch10.addConstraint(Sketcher.Constraint("DistanceY", -1, 1, 7, 3, 8.0))
sketch10.addConstraint(Sketcher.Constraint("DistanceX", 1, 3, 0, 3, 9.0))
sketch10.addConstraint(Sketcher.Constraint("DistanceX", 0, 3, 2, 3, 9.0))
sketch10.addConstraint(Sketcher.Constraint("DistanceX", 3, 3, 0, 3, 3.0))
sketch10.addConstraint(Sketcher.Constraint("DistanceX", 3, 3, 6, 3, 6.0))
sketch10.addConstraint(Sketcher.Constraint("DistanceX", -1, 1, 0, 3, 19.5))
pocket2 = body.newObject("PartDesign::Pocket", "Pocket001")
pocket2.Profile = sketch10
pocket2.Length = 1

doc.recompute()
